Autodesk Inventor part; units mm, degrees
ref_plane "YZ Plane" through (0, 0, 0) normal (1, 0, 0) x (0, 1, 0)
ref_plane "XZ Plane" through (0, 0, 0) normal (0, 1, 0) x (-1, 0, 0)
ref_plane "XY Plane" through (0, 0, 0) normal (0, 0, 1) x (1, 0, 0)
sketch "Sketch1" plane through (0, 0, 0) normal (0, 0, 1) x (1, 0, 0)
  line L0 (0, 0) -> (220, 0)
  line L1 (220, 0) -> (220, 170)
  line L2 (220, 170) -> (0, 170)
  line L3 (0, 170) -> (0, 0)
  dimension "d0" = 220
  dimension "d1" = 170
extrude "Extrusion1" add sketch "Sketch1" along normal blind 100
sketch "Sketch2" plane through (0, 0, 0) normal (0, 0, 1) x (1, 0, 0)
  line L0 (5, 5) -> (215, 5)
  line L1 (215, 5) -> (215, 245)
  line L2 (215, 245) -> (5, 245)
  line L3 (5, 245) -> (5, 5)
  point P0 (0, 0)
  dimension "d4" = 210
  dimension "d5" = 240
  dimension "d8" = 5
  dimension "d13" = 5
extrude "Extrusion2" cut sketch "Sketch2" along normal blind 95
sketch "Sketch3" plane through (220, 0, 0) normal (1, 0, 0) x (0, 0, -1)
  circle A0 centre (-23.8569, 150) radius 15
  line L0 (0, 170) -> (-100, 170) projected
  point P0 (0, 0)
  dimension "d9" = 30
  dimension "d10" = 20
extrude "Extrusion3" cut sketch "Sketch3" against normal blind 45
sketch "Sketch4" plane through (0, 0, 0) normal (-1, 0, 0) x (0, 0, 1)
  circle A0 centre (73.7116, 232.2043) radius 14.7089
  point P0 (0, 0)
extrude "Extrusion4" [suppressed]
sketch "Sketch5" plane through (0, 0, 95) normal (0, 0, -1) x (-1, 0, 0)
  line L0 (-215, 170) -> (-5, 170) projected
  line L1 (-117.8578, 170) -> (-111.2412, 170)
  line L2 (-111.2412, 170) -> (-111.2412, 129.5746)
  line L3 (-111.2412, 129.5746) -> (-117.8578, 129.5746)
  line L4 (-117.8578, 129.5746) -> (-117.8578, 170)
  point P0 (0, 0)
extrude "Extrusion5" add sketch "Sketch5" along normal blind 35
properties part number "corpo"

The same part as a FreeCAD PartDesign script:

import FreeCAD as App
import Part
import Sketcher
from FreeCAD import Vector

doc = App.newDocument("Part")
body = doc.addObject("PartDesign::Body", "Body")

# Sketch on XY plane
sketch1 = body.newObject("Sketcher::SketchObject", "Sketch")
sketch1.AttachmentSupport = (doc.getObject("XY_Plane"), [""])
sketch1.MapMode = "FlatFace"
sketch1.addGeometry(Part.LineSegment(Vector(0, 170, 0), Vector(0, 0, 0)), False)
sketch1.addGeometry(Part.LineSegment(Vector(0, 0, 0), Vector(220, 0, 0)), False)
sketch1.addGeometry(Part.LineSegment(Vector(220, 0, 0), Vector(220, 170, 0)), False)
sketch1.addGeometry(Part.LineSegment(Vector(220, 170, 0), Vector(0, 170, 0)), False)
sketch1.addConstraint(Sketcher.Constraint("Coincident", 0, 2, 1, 1))
sketch1.addConstraint(Sketcher.Constraint("Coincident", 1, 2, 2, 1))
sketch1.addConstraint(Sketcher.Constraint("Coincident", 2, 2, 3, 1))
sketch1.addConstraint(Sketcher.Constraint("Coincident", 3, 2, 0, 1))
sketch1.addConstraint(Sketcher.Constraint("Vertical", 0))
sketch1.addConstraint(Sketcher.Constraint("Horizontal", 1))
sketch1.addConstraint(Sketcher.Constraint("Vertical", 2))
sketch1.addConstraint(Sketcher.Constraint("Horizontal", 3))
sketch1.addConstraint(Sketcher.Constraint("Coincident", 0, 2, -1, 1))
sketch1.addConstraint(Sketcher.Constraint("DistanceX", 1, 1, 1, 2, 220.0))
sketch1.addConstraint(Sketcher.Constraint("DistanceY", 0, 2, 0, 1, 170.0))
pad1 = body.newObject("PartDesign::Pad", "Pad")
pad1.Profile = sketch1
pad1.Length = 100

# Sketch on XY plane
sketch2 = body.newObject("Sketcher::SketchObject", "Sketch001")
sketch2.AttachmentSupport = (doc.getObject("XY_Plane"), [""])
sketch2.MapMode = "FlatFace"
sketch2.addGeometry(Part.LineSegment(Vector(5, 245, 0), Vector(5, 5, 0)), False)
sketch2.addGeometry(Part.LineSegment(Vector(5, 5, 0), Vector(215, 5, 0)), False)
sketch2.addGeometry(Part.LineSegment(Vector(215, 5, 0), Vector(215, 245, 0)), False)
sketch2.addGeometry(Part.LineSegment(Vector(215, 245, 0), Vector(5, 245, 0)), False)
sketch2.addConstraint(Sketcher.Constraint("Coincident", 0, 2, 1, 1))
sketch2.addConstraint(Sketcher.Constraint("Coincident", 1, 2, 2, 1))
sketch2.addConstraint(Sketcher.Constraint("Coincident", 2, 2, 3, 1))
sketch2.addConstraint(Sketcher.Constraint("Coincident", 3, 2, 0, 1))
sketch2.addConstraint(Sketcher.Constraint("Vertical", 0))
sketch2.addConstraint(Sketcher.Constraint("Horizontal", 1))
sketch2.addConstraint(Sketcher.Constraint("Vertical", 2))
sketch2.addConstraint(Sketcher.Constraint("Horizontal", 3))
sketch2.addConstraint(Sketcher.Constraint("DistanceX", 1, 1, 1, 2, 210.0))
sketch2.addConstraint(Sketcher.Constraint("DistanceY", 0, 2, 0, 1, 240.0))
sketch2.addConstraint(Sketcher.Constraint("DistanceX", -1, 1, 0, 2, 5.0))
sketch2.addConstraint(Sketcher.Constraint("DistanceY", -1, 1, 0, 2, 5.0))
pocket1 = body.newObject("PartDesign::Pocket", "Pocket")
pocket1.Profile = sketch2
pocket1.Length = 95
pocket1.Reversed = True

# Sketch on YZ plane
sketch3 = body.newObject("Sketcher::SketchObject", "Sketch002")
sketch3.AttachmentSupport = (doc.getObject("YZ_Plane"), [""])
sketch3.MapMode = "FlatFace"
sketch3.AttachmentOffset = App.Placement(Vector(0, 0, 220), App.Rotation())
sketch3.addGeometry(Part.Circle(Vector(150, 24, 0), Vector(0, 0, 1), 15), False)
sketch3.addConstraint(Sketcher.Constraint("Diameter", 0, 30.0))
sketch3.addConstraint(Sketcher.Constraint("DistanceX", -1, 1, 0, 3, 150.0))
sketch3.addConstraint(Sketcher.Constraint("DistanceY", -1, 1, 0, 3, 23.857))
pocket2 = body.newObject("PartDesign::Pocket", "Pocket001")
pocket2.Profile = sketch3
pocket2.Length = 45

# Sketch on XY plane
sketch4 = body.newObject("Sketcher::SketchObject", "Sketch003")
sketch4.AttachmentSupport = (doc.getObject("XY_Plane"), [""])
sketch4.MapMode = "FlatFace"
sketch4.AttachmentOffset = App.Placement(Vector(0, 0, 95), App.Rotation())
sketch4.addGeometry(Part.LineSegment(Vector(111, 170, 0), Vector(118, 170, 0)), False)
sketch4.addGeometry(Part.LineSegment(Vector(118, 170, 0), Vector(118, 130, 0)), False)
sketch4.addGeometry(Part.LineSegment(Vector(118, 130, 0), Vector(111, 130, 0)), False)
sketch4.addGeometry(Part.LineSegment(Vector(111, 130, 0), Vector(111, 170, 0)), False)
sketch4.addConstraint(Sketcher.Constraint("Coincident", 0, 2, 1, 1))
sketch4.addConstraint(Sketcher.Constraint("Coincident", 1, 2, 2, 1))
sketch4.addConstraint(Sketcher.Constraint("Coincident", 2, 2, 3, 1))
sketch4.addConstraint(Sketcher.Constraint("Coincident", 3, 2, 0, 1))
sketch4.addConstraint(Sketcher.Constraint("Horizontal", 0))
sketch4.addConstraint(Sketcher.Constraint("Vertical", 1))
sketch4.addConstraint(Sketcher.Constraint("Horizontal", 2))
sketch4.addConstraint(Sketcher.Constraint("Vertical", 3))
sketch4.addConstraint(Sketcher.Constraint("DistanceY", -1, 1, 0, 2, 170.0))
sketch4.addConstraint(Sketcher.Constraint("DistanceX", 0, 1, 0, 2, 6.6166))
sketch4.addConstraint(Sketcher.Constraint("DistanceY", 1, 2, 1, 1, 40.4254))
sketch4.addConstraint(Sketcher.Constraint("DistanceX", -1, 1, 0, 2, 117.8578))
pad2 = body.newObject("PartDesign::Pad", "Pad001")
pad2.Profile = sketch4
pad2.Length = 35
pad2.Reversed = True

doc.recompute()
